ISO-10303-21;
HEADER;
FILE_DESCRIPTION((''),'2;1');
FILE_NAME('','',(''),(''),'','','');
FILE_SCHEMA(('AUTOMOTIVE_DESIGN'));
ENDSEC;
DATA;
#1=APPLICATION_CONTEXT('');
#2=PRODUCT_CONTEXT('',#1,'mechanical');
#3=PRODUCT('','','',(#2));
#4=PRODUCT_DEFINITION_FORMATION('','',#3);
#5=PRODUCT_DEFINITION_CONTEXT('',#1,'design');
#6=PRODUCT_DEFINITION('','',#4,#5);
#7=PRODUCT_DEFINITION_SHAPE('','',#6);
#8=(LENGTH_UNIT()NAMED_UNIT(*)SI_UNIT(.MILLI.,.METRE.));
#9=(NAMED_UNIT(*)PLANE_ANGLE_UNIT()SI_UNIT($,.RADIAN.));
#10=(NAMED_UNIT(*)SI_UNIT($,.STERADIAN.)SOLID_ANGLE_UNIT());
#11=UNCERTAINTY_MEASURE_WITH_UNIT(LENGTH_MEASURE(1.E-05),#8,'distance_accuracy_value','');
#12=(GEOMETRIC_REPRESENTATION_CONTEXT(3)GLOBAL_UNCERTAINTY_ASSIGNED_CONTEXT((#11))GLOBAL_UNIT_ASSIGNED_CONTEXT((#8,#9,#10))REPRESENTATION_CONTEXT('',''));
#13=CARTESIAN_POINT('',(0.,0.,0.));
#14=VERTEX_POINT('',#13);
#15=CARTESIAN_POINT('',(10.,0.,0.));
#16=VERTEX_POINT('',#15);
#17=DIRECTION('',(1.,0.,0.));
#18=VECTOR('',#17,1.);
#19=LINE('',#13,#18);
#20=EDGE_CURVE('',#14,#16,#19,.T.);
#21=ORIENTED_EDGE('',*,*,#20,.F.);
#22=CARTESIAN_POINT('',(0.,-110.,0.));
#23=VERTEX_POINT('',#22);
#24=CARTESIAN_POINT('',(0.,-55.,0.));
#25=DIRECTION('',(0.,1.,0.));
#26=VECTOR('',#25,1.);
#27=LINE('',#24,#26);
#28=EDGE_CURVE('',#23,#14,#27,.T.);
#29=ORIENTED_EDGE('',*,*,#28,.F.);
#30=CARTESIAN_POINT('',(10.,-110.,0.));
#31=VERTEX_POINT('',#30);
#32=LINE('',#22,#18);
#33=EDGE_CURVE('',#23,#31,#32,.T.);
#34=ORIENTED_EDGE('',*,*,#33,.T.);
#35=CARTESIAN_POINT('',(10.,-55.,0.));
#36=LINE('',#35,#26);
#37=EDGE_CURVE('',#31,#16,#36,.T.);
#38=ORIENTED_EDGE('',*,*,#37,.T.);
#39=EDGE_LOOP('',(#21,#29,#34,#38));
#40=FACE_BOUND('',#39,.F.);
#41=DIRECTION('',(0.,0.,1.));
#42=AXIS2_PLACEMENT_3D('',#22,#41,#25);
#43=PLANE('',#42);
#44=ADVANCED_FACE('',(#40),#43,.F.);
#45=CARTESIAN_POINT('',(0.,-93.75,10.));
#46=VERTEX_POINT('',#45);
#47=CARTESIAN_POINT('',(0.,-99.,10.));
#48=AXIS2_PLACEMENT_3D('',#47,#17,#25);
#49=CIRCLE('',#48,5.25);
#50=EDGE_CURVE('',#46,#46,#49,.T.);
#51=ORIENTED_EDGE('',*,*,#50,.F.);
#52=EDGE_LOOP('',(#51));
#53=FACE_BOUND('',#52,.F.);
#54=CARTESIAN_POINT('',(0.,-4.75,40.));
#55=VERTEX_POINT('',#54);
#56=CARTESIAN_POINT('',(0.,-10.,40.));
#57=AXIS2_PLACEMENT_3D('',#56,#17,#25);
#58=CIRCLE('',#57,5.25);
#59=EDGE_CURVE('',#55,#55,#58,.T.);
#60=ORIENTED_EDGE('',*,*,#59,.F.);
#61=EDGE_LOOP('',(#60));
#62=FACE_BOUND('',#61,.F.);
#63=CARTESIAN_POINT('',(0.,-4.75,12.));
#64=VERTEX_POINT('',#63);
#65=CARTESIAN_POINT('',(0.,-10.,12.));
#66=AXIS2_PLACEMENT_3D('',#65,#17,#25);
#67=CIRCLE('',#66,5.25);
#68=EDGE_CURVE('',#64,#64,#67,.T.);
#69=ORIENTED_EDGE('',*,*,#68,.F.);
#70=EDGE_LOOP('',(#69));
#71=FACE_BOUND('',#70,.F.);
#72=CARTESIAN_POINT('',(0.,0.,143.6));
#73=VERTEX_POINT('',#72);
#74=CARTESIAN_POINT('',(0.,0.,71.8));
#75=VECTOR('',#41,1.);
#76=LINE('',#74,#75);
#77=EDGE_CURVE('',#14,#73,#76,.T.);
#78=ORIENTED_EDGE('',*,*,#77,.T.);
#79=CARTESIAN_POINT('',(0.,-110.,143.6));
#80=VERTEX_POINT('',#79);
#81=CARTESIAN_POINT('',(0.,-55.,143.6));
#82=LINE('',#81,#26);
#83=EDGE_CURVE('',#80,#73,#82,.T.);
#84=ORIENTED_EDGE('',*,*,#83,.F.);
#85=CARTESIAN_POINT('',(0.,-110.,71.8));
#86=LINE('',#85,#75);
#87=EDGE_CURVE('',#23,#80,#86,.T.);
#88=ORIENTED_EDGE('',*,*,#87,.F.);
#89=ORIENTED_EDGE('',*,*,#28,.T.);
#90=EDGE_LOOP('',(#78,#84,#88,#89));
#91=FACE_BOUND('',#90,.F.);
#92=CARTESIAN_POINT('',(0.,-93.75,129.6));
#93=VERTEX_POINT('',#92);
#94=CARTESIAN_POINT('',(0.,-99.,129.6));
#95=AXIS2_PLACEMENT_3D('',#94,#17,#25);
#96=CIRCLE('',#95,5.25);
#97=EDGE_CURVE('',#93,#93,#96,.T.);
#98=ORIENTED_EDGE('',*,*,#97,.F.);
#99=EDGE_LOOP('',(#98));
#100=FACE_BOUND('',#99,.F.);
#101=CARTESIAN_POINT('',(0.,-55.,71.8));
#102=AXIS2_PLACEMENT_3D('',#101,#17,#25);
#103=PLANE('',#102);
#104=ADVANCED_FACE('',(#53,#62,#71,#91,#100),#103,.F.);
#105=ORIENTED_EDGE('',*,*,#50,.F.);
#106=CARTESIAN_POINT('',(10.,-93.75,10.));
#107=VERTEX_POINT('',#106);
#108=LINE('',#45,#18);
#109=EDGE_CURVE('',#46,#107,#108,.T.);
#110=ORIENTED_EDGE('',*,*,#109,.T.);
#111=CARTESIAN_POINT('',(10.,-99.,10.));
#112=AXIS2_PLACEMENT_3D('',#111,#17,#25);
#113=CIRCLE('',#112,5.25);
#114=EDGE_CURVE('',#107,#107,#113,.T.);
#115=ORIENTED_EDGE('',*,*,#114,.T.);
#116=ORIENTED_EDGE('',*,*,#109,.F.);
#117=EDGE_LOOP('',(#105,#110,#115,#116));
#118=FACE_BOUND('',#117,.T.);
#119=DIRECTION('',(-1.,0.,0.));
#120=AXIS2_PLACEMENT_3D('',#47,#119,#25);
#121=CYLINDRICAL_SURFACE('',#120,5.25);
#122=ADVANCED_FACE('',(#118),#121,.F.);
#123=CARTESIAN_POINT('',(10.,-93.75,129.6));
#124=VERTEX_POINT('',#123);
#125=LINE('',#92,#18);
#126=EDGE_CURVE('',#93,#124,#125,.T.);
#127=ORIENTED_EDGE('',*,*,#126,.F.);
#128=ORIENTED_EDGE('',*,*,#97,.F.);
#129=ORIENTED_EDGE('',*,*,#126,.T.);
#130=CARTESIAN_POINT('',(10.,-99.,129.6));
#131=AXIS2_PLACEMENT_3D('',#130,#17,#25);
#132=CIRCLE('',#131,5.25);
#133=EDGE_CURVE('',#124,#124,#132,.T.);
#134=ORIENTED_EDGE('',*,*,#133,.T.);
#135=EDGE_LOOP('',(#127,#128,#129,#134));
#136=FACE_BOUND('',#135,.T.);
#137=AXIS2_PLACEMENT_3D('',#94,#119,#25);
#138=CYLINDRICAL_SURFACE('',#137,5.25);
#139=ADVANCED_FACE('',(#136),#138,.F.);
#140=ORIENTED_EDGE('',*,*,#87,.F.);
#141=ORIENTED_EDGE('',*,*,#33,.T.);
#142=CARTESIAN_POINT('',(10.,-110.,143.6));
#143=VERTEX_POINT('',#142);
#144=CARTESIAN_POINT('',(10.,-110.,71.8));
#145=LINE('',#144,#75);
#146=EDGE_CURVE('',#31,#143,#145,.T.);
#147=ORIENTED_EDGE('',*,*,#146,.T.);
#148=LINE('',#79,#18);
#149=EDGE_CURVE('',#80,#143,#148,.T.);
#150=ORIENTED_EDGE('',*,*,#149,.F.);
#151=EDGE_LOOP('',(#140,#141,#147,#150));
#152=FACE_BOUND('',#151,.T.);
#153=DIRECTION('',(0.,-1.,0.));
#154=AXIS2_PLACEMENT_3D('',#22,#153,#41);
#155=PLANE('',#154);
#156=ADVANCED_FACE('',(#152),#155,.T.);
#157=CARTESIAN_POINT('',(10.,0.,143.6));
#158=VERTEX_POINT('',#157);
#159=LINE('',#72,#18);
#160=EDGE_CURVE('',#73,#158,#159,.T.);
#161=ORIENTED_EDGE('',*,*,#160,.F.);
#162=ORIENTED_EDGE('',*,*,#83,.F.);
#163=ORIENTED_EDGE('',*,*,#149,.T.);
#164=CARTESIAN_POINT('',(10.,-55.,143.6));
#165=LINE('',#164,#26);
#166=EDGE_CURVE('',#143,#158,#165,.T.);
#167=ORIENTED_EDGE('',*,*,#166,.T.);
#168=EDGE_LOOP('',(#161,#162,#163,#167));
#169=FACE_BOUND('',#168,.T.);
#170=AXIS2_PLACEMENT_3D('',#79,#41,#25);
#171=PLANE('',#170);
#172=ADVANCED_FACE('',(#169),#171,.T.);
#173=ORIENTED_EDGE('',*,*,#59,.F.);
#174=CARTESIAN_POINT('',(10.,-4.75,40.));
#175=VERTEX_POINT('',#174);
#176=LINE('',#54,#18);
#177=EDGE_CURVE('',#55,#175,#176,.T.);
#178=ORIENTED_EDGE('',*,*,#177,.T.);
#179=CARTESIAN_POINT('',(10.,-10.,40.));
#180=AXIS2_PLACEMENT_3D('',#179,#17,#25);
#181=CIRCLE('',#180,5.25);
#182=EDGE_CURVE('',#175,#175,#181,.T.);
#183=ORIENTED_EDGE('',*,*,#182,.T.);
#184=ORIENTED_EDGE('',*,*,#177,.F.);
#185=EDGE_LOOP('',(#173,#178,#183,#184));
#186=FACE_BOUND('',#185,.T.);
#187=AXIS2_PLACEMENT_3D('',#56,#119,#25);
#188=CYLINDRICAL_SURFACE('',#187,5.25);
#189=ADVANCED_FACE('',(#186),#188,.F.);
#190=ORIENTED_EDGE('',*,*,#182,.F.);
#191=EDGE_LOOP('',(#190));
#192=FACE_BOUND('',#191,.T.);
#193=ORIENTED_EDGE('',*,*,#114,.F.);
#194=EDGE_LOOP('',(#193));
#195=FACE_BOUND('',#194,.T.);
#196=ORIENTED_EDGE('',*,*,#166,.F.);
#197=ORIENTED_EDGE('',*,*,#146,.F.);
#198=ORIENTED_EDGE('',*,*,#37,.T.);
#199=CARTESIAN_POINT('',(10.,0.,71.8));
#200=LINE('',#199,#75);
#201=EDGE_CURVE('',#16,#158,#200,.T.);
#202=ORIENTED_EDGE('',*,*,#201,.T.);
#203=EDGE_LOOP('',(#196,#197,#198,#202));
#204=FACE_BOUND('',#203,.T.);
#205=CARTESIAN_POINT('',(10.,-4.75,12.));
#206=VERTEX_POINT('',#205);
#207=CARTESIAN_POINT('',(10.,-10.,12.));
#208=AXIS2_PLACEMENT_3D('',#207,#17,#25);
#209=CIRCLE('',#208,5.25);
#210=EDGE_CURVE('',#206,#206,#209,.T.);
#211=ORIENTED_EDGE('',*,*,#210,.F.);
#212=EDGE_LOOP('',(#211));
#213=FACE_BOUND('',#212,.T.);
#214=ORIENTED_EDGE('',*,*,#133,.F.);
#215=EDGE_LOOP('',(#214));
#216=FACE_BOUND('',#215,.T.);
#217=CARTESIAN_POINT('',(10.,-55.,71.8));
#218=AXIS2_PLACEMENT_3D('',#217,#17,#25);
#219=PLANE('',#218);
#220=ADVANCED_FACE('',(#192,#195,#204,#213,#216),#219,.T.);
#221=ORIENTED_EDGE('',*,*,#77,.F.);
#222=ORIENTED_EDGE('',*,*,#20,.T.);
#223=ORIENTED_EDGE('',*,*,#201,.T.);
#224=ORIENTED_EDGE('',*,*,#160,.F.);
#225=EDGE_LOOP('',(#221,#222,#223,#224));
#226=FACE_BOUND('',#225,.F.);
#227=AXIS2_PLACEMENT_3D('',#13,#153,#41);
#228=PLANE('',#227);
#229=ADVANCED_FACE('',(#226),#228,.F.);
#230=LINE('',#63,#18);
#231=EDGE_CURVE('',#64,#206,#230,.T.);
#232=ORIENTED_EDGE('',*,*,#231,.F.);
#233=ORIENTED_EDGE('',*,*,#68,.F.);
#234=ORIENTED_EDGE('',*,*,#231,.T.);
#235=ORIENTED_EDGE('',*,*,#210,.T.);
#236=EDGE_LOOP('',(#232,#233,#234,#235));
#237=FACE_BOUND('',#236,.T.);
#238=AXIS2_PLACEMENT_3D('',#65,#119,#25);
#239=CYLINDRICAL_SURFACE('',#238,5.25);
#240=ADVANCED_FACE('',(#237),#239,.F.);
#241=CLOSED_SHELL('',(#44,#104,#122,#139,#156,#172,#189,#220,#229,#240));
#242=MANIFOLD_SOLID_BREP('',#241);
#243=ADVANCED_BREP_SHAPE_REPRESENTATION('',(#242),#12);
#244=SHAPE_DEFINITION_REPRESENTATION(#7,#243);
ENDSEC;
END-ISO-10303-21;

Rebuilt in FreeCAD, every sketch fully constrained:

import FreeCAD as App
import Part
import Sketcher
Q = App.Units.Quantity


def add_polygon(sketch, points):
    """Adds a closed chain of lines whose ends are joined by coincident constraints."""
    first, n = sketch.GeometryCount, len(points)
    for a, b in zip(points, points[1:] + points[:1]):
        sketch.addGeometry(Part.LineSegment(App.Vector(*a, 0), App.Vector(*b, 0)), False)
    for i in range(n):
        sketch.addConstraint(Sketcher.Constraint("Coincident", first + i, 2, first + (i + 1) % n, 1))

doc = App.newDocument("Part")
body = doc.addObject("PartDesign::Body", "Body")

# Sketch on YZ plane
sketch1 = body.newObject("Sketcher::SketchObject", "Sketch")
sketch1.AttachmentSupport = (doc.getObject("YZ_Plane"), [""])
sketch1.MapMode = "FlatFace"
add_polygon(sketch1, [(-110, 144), (-110, 0), (0, 0), (0, 144)])  # lines 0-3
sketch1.addGeometry(Part.Circle(App.Vector(-99, 10, 0), App.Vector(0, 0, 1), 5), False)  # 4
sketch1.addGeometry(Part.Circle(App.Vector(-10, 12, 0), App.Vector(0, 0, 1), 5), False)  # 5
sketch1.addGeometry(Part.Circle(App.Vector(-10, 40, 0), App.Vector(0, 0, 1), 5), False)  # 6
sketch1.addGeometry(Part.Circle(App.Vector(-99, 130, 0), App.Vector(0, 0, 1), 5), False)  # 7
sketch1.addConstraint(Sketcher.Constraint("Vertical", 0))
sketch1.addConstraint(Sketcher.Constraint("Horizontal", 1))
sketch1.addConstraint(Sketcher.Constraint("Vertical", 2))
sketch1.addConstraint(Sketcher.Constraint("Horizontal", 3))
sketch1.addConstraint(Sketcher.Constraint("Coincident", 1, 2, -1, 1))
sketch1.addConstraint(Sketcher.Constraint("Equal", 4, 5))
sketch1.addConstraint(Sketcher.Constraint("Equal", 5, 6))
sketch1.addConstraint(Sketcher.Constraint("Equal", 6, 7))
sketch1.addConstraint(Sketcher.Constraint("Vertical", 5, 3, 6, 3))
sketch1.addConstraint(Sketcher.Constraint("Vertical", 4, 3, 7, 3))
sketch1.addConstraint(Sketcher.Constraint("Diameter", 4, Q("10.5 mm")))
sketch1.addConstraint(Sketcher.Constraint("DistanceX", 1, 1, 1, 2, Q("110 mm")))
sketch1.addConstraint(Sketcher.Constraint("DistanceY", 0, 2, 0, 1, Q("143.6 mm")))
sketch1.addConstraint(Sketcher.Constraint("DistanceX", 4, 3, -1, 1, Q("99 mm")))
sketch1.addConstraint(Sketcher.Constraint("DistanceY", -1, 1, 4, 3, Q("10 mm")))
sketch1.addConstraint(Sketcher.Constraint("DistanceX", 5, 3, -1, 1, Q("10 mm")))
sketch1.addConstraint(Sketcher.Constraint("DistanceY", -1, 1, 5, 3, Q("12 mm")))
sketch1.addConstraint(Sketcher.Constraint("DistanceY", -1, 1, 6, 3, Q("40 mm")))
sketch1.addConstraint(Sketcher.Constraint("DistanceY", 7, 3, 2, 2, Q("14 mm")))
pad1 = body.newObject("PartDesign::Pad", "Pad")
pad1.Profile = sketch1
pad1.Length = 10

doc.recompute()
